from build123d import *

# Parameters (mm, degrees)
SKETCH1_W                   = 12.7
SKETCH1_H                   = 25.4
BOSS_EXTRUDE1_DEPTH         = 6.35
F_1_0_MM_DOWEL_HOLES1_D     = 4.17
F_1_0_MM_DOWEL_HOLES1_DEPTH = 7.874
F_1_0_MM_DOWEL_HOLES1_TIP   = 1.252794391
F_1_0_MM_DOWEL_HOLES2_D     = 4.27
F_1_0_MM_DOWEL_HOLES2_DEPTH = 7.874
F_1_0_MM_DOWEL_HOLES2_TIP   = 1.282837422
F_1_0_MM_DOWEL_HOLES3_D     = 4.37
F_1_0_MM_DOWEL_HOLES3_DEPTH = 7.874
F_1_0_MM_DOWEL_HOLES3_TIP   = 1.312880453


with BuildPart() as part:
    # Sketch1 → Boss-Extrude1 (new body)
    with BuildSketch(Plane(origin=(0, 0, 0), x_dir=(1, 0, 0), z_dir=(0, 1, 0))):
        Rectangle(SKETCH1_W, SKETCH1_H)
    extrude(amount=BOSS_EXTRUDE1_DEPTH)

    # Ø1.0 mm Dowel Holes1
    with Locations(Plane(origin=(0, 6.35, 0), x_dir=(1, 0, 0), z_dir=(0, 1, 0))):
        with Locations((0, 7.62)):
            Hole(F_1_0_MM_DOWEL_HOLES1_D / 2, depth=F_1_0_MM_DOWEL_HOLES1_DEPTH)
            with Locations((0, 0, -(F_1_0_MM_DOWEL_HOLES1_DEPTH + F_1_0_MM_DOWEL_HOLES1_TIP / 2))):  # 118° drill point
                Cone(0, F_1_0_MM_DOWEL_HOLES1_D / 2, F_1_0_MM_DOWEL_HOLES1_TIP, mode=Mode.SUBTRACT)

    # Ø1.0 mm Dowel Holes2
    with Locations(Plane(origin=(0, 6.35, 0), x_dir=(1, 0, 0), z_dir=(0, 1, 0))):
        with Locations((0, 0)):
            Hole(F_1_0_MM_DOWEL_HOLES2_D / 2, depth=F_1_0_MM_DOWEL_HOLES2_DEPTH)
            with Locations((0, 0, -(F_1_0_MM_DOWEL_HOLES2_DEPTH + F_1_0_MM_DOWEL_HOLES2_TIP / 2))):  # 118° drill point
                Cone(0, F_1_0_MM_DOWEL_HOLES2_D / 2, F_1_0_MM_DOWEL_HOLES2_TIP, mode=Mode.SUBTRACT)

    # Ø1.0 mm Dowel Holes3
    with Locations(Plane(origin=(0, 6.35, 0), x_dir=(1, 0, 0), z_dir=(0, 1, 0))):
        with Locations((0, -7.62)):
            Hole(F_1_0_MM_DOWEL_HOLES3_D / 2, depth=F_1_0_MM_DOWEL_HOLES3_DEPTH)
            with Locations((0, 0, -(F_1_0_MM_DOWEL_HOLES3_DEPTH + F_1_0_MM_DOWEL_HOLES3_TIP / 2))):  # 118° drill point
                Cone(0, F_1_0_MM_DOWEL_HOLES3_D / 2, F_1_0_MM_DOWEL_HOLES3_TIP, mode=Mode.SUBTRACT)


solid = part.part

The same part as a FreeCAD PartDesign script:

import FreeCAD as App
import Part
import Sketcher

V = App.Vector
Q = App.Units.Quantity

doc = App.newDocument("Part")
body = doc.addObject("PartDesign::Body", "Body")

sketch1 = body.newObject("Sketcher::SketchObject", "Sketch")
sketch1.AttachmentSupport = (doc.getObject("XZ_Plane"), [""])
sketch1.MapMode = "FlatFace"
sketch1.addGeometry(Part.LineSegment(V(-6, -13, 0), V(-6, 13, 0)), False)
sketch1.addGeometry(Part.LineSegment(V(-6, 13, 0), V(6, 13, 0)), False)
sketch1.addGeometry(Part.LineSegment(V(6, 13, 0), V(6, -13, 0)), False)
sketch1.addGeometry(Part.LineSegment(V(6, -13, 0), V(-6, -13, 0)), False)
sketch1.addConstraint(Sketcher.Constraint("Coincident", 0, 2, 1, 1))
sketch1.addConstraint(Sketcher.Constraint("Coincident", 1, 2, 2, 1))
sketch1.addConstraint(Sketcher.Constraint("Coincident", 2, 2, 3, 1))
sketch1.addConstraint(Sketcher.Constraint("Coincident", 3, 2, 0, 1))
sketch1.addConstraint(Sketcher.Constraint("Vertical", 0))
sketch1.addConstraint(Sketcher.Constraint("Horizontal", 1))
sketch1.addConstraint(Sketcher.Constraint("Vertical", 2))
sketch1.addConstraint(Sketcher.Constraint("Horizontal", 3))
sketch1.addConstraint(Sketcher.Constraint("Symmetric", 0, 2, 2, 2, -1, 1))
sketch1.addConstraint(Sketcher.Constraint("DistanceY", 0, 1, 0, 2, Q("1 in")))
sketch1.addConstraint(Sketcher.Constraint("DistanceX", 1, 1, 1, 2, Q("0.5 in")))
pad1 = body.newObject("PartDesign::Pad", "Pad")
pad1.Profile = sketch1
pad1.Length = Q("0.25 in")
pad1.Reversed = True

sketch2 = body.newObject("Sketcher::SketchObject", "Sketch001")
sketch2.AttachmentSupport = (doc.getObject("XZ_Plane"), [""])
sketch2.MapMode = "FlatFace"
sketch2.AttachmentOffset = App.Placement(V(0, 0, -0.25 * 25.4), App.Rotation())
sketch2.addGeometry(Part.Circle(V(0, -7.6, 0), V(0, 0, 1), 2.1), False)
sketch2.addConstraint(Sketcher.Constraint("PointOnObject", 0, 3, -2))
sketch2.addConstraint(Sketcher.Constraint("DistanceY", 0, 3, -1, 1, Q("0.3 in")))
sketch2.addConstraint(Sketcher.Constraint("Diameter", 0, Q("4.17 mm")))
doc.recompute()
hole = body.newObject("PartDesign::Hole", "Hole")
hole.Profile = sketch2
hole.ThreadType = "None"
hole.Diameter = 4.17
hole.DepthType = "Dimension"
hole.Depth = Q("0.31 in")
hole.DrillPoint = "Angled"
hole.DrillPointAngle = 118
hole.Reversed = True

sketch3 = body.newObject("Sketcher::SketchObject", "Sketch002")
sketch3.AttachmentSupport = (doc.getObject("XZ_Plane"), [""])
sketch3.MapMode = "FlatFace"
sketch3.AttachmentOffset = App.Placement(V(0, 0, -0.25 * 25.4), App.Rotation())
sketch3.addGeometry(Part.Circle(V(0, 0, 0), V(0, 0, 1), 2.1), False)
sketch3.addConstraint(Sketcher.Constraint("Coincident", 0, 3, -1, 1))
sketch3.addConstraint(Sketcher.Constraint("Diameter", 0, Q("4.27 mm")))
doc.recompute()
hole2 = body.newObject("PartDesign::Hole", "Hole001")
hole2.Profile = sketch3
hole2.ThreadType = "None"
hole2.Diameter = 4.27
hole2.DepthType = "Dimension"
hole2.Depth = Q("0.31 in")
hole2.DrillPoint = "Angled"
hole2.DrillPointAngle = 118
hole2.Reversed = True

sketch4 = body.newObject("Sketcher::SketchObject", "Sketch003")
sketch4.AttachmentSupport = (doc.getObject("XZ_Plane"), [""])
sketch4.MapMode = "FlatFace"
sketch4.AttachmentOffset = App.Placement(V(0, 0, -0.25 * 25.4), App.Rotation())
sketch4.addGeometry(Part.Circle(V(0, 7.6, 0), V(0, 0, 1), 2.2), False)
sketch4.addConstraint(Sketcher.Constraint("PointOnObject", 0, 3, -2))
sketch4.addConstraint(Sketcher.Constraint("DistanceY", -1, 1, 0, 3, Q("0.3 in")))
sketch4.addConstraint(Sketcher.Constraint("Diameter", 0, Q("4.37 mm")))
doc.recompute()
hole3 = body.newObject("PartDesign::Hole", "Hole002")
hole3.Profile = sketch4
hole3.ThreadType = "None"
hole3.Diameter = 4.37
hole3.DepthType = "Dimension"
hole3.Depth = Q("0.31 in")
hole3.DrillPoint = "Angled"
hole3.DrillPointAngle = 118
hole3.Reversed = True

doc.recompute()
